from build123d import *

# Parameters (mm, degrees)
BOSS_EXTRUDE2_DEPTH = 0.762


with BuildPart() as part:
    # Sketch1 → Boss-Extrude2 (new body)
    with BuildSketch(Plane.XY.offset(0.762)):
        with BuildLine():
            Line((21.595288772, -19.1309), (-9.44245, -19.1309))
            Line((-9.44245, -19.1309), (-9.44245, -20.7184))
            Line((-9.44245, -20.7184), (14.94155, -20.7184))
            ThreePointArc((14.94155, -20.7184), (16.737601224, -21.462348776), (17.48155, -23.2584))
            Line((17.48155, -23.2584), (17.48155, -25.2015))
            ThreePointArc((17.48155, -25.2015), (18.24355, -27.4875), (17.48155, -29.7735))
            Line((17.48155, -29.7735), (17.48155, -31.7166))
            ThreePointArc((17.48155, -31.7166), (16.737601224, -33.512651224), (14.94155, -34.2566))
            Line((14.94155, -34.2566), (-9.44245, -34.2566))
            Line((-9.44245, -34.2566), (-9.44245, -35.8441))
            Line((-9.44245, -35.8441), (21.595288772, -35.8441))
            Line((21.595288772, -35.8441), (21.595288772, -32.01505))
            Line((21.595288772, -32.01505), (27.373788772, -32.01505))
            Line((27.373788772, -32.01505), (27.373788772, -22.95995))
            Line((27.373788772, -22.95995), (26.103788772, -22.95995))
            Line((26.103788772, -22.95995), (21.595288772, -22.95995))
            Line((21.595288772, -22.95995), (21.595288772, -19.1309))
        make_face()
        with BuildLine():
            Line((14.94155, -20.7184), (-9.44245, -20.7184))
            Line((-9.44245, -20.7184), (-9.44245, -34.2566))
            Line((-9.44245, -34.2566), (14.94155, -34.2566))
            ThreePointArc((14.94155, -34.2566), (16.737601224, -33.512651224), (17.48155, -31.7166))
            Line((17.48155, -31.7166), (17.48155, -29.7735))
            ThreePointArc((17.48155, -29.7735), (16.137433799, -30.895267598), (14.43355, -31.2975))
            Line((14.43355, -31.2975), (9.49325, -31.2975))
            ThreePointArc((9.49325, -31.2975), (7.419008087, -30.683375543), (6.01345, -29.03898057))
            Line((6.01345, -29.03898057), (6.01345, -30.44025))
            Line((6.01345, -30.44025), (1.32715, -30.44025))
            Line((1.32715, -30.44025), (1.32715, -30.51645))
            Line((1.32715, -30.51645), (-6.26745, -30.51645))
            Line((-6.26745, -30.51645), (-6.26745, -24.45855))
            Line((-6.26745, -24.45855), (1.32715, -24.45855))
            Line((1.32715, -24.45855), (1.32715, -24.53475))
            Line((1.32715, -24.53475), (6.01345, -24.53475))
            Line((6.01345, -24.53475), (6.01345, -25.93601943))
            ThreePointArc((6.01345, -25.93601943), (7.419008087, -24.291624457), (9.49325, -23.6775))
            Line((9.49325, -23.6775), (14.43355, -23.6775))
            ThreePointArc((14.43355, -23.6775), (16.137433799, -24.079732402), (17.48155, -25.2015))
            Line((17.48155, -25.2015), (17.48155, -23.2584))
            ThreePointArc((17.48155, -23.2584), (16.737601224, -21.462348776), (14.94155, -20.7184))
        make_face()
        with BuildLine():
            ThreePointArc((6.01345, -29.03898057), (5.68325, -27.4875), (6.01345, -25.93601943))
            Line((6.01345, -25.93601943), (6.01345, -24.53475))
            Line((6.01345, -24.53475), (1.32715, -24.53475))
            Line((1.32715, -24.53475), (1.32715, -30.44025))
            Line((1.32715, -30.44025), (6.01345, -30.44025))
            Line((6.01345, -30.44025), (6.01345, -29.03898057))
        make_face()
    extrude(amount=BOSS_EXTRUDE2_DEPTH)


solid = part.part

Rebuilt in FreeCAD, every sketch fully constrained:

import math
import FreeCAD as App
import Part
import Sketcher
Q = App.Units.Quantity

doc = App.newDocument("Part")
params = doc.addObject("Spreadsheet::Sheet", "Params")
for row, (alias, value) in enumerate([
    ("sketch1_radius", "0.15 in"),
    ("sketch1_width", "0.299 in"),
    ("sketch1_height", "0.658 in"),
    ("pad1_length", "0.03 in"),
], start=1):
    params.set(f"A{row}", alias)
    params.set(f"B{row}", "=" + value)
    params.setAlias(f"B{row}", alias)

body = doc.addObject("PartDesign::Body", "Body")

# Sketch on XY plane
sketch1 = body.newObject("Sketcher::SketchObject", "Sketch")
sketch1.AttachmentSupport = (doc.getObject("XY_Plane"), [""])
sketch1.MapMode = "FlatFace"
sketch1.AttachmentOffset = App.Placement(App.Vector(0, 0, 0.03 * 25.4), App.Rotation())
sketch1.addGeometry([
    Part.LineSegment(App.Vector(21.6, -19.1, 0), App.Vector(-9.4, -19.1, 0)),  # 0
    Part.LineSegment(App.Vector(-9.4, -19.1, 0), App.Vector(-9.4, -35.8, 0)),  # 1
    Part.LineSegment(App.Vector(-9.4, -35.8, 0), App.Vector(21.6, -35.8, 0)),  # 2
    Part.LineSegment(App.Vector(21.6, -35.8, 0), App.Vector(21.6, -32, 0)),  # 3
    Part.LineSegment(App.Vector(21.6, -32, 0), App.Vector(27.4, -32, 0)),  # 4
    Part.LineSegment(App.Vector(27.4, -32, 0), App.Vector(27.4, -23, 0)),  # 5
    Part.LineSegment(App.Vector(27.4, -23, 0), App.Vector(21.6, -23, 0)),  # 6
    Part.LineSegment(App.Vector(21.6, -23, 0), App.Vector(21.6, -19.1, 0)),  # 7
    Part.ArcOfCircle(Part.Circle(App.Vector(14.4, -27.5, 0), App.Vector(0, 0, 1), 3.8), math.radians(-37), math.radians(37)),  # 8
    Part.ArcOfCircle(Part.Circle(App.Vector(14.4, -27.5, 0), App.Vector(0, 0, 1), 3.8), math.radians(-90), math.radians(-37)),  # 9
    Part.LineSegment(App.Vector(14.4, -31.3, 0), App.Vector(9.5, -31.3, 0)),  # 10
    Part.ArcOfCircle(Part.Circle(App.Vector(9.5, -27.5, 0), App.Vector(0, 0, 1), 3.8), math.radians(-156), math.radians(-90)),  # 11
    Part.ArcOfCircle(Part.Circle(App.Vector(9.5, -27.5, 0), App.Vector(0, 0, 1), 3.8), math.radians(156), math.radians(204)),  # 12
    Part.ArcOfCircle(Part.Circle(App.Vector(9.5, -27.5, 0), App.Vector(0, 0, 1), 3.8), math.radians(90), math.radians(156)),  # 13
    Part.LineSegment(App.Vector(9.5, -23.7, 0), App.Vector(14.4, -23.7, 0)),  # 14
    Part.ArcOfCircle(Part.Circle(App.Vector(14.4, -27.5, 0), App.Vector(0, 0, 1), 3.8), math.radians(37), math.radians(90)),  # 15
    Part.LineSegment(App.Vector(1.3, -30.5, 0), App.Vector(-6.3, -30.5, 0)),  # 16
    Part.LineSegment(App.Vector(-6.3, -30.5, 0), App.Vector(-6.3, -24.5, 0)),  # 17
    Part.LineSegment(App.Vector(-6.3, -24.5, 0), App.Vector(1.3, -24.5, 0)),  # 18
    Part.LineSegment(App.Vector(1.3, -24.5, 0), App.Vector(1.3, -30.5, 0)),  # 19
], False)
sketch1.addConstraint([
    Sketcher.Constraint("Coincident", 0, 2, 1, 1),
    Sketcher.Constraint("Coincident", 1, 2, 2, 1),
    Sketcher.Constraint("Coincident", 2, 2, 3, 1),
    Sketcher.Constraint("Coincident", 3, 2, 4, 1),
    Sketcher.Constraint("Coincident", 4, 2, 5, 1),
    Sketcher.Constraint("Coincident", 5, 2, 6, 1),
    Sketcher.Constraint("Coincident", 6, 2, 7, 1),
    Sketcher.Constraint("Coincident", 7, 2, 0, 1),
    Sketcher.Constraint("Tangent", 8, 1, 9, 2),
    Sketcher.Constraint("Tangent", 9, 1, 10, 1),
    Sketcher.Constraint("Tangent", 10, 2, 11, 2),
    Sketcher.Constraint("Tangent", 11, 1, 12, 2),
    Sketcher.Constraint("Tangent", 12, 1, 13, 2),
    Sketcher.Constraint("Tangent", 13, 1, 14, 1),
    Sketcher.Constraint("Tangent", 14, 2, 15, 2),
    Sketcher.Constraint("Tangent", 15, 1, 8, 2),
    Sketcher.Constraint("Coincident", 16, 2, 17, 1),
    Sketcher.Constraint("Coincident", 17, 2, 18, 1),
    Sketcher.Constraint("Coincident", 18, 2, 19, 1),
    Sketcher.Constraint("Coincident", 19, 2, 16, 1),
    Sketcher.Constraint("Horizontal", 0),
    Sketcher.Constraint("Vertical", 1),
    Sketcher.Constraint("Horizontal", 2),
    Sketcher.Constraint("Vertical", 3),
    Sketcher.Constraint("Horizontal", 4),
    Sketcher.Constraint("Vertical", 5),
    Sketcher.Constraint("Horizontal", 6),
    Sketcher.Constraint("Vertical", 7),
    Sketcher.Constraint("Horizontal", 10),
    Sketcher.Constraint("Horizontal", 14),
    Sketcher.Constraint("Horizontal", 16),
    Sketcher.Constraint("Vertical", 17),
    Sketcher.Constraint("Horizontal", 18),
    Sketcher.Constraint("Vertical", 19),
    Sketcher.Constraint("Coincident", 13, 3, 11, 3),
    Sketcher.Constraint("Equal", 8, 9),
    Sketcher.Constraint("Equal", 9, 11),
    Sketcher.Constraint("Vertical", 3, 2, 6, 2),
    Sketcher.Constraint("Vertical", 11, 1, 12, 1),
    Sketcher.Constraint("Vertical", 8, 1, 15, 1),
    Sketcher.Constraint("Equal", 3, 7),
    Sketcher.Constraint("Radius", 8, Q("0.15 in")),
    Sketcher.Constraint("DistanceX", 16, 2, 16, 1, Q("0.299 in")),
    Sketcher.Constraint("DistanceY", 1, 2, 1, 1, Q("0.658 in")),
    Sketcher.Constraint("DistanceX", 0, 2, 15, 3, Q("0.94 in")),
    Sketcher.Constraint("DistanceX", 9, 3, 8, 1, Q("0.12 in")),
    Sketcher.Constraint("DistanceX", 4, 1, 4, 2, Q("0.2275 in")),
    Sketcher.Constraint("DistanceX", 10, 2, 10, 1, Q("0.1945 in")),
    Sketcher.Constraint("DistanceY", 5, 1, 5, 2, Q("0.3565 in")),
    Sketcher.Constraint("DistanceY", 17, 1, 17, 2, Q("0.2385 in")),
    Sketcher.Constraint("DistanceY", 12, 3, 0, 2, Q("0.329 in")),
    Sketcher.Constraint("DistanceX", 11, 1, 12, 3, Q("0.137 in")),
    Sketcher.Constraint("DistanceX", 1, 2, 16, 2, Q("0.125 in")),
    Sketcher.Constraint("DistanceX", 0, 2, 0, 1, Q("31.037739 mm")),
    Sketcher.Constraint("DistanceY", 8, 3, -1, 1, Q("27.4875 mm")),
    Sketcher.Constraint("DistanceX", -1, 1, 8, 3, Q("14.43355 mm")),
    Sketcher.Constraint("DistanceY", 16, 2, -1, 1, Q("30.51645 mm")),
])
sketch1.setExpression("Constraints[41]", "Params.sketch1_radius")
sketch1.setExpression("Constraints[42]", "Params.sketch1_width")
sketch1.setExpression("Constraints[43]", "Params.sketch1_height")
pad1 = body.newObject("PartDesign::Pad", "Pad")
pad1.Profile = sketch1
pad1.setExpression("Length", "Params.pad1_length")

doc.recompute()
